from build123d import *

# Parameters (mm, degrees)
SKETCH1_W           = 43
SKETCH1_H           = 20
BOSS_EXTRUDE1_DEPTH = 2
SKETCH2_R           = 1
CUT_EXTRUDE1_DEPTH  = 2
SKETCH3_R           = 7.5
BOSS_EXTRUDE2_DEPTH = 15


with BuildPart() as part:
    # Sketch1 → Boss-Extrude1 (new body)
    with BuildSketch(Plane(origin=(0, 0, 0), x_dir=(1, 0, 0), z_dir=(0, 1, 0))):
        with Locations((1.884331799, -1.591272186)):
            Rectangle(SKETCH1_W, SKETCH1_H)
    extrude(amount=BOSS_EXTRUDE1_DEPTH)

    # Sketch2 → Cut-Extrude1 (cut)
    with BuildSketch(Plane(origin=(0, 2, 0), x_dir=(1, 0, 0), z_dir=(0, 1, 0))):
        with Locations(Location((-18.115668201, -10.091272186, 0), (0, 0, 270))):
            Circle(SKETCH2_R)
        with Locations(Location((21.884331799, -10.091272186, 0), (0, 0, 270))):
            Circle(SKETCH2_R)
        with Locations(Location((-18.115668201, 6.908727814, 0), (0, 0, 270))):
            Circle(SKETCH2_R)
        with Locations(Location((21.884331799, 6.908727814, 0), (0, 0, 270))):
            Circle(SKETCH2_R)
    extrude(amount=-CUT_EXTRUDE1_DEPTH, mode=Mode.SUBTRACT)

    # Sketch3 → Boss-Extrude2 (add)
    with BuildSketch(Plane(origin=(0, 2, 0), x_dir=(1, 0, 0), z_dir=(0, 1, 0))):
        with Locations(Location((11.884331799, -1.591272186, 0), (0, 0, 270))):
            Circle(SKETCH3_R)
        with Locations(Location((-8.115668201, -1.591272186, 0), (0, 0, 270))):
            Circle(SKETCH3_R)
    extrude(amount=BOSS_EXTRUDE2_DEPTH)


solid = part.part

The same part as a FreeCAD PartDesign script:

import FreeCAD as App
import Part
import Sketcher


def add_polygon(sketch, points):
    """Adds a closed chain of lines whose ends are joined by coincident constraints."""
    first, n = sketch.GeometryCount, len(points)
    for a, b in zip(points, points[1:] + points[:1]):
        sketch.addGeometry(Part.LineSegment(App.Vector(*a, 0), App.Vector(*b, 0)), False)
    for i in range(n):
        sketch.addConstraint(Sketcher.Constraint("Coincident", first + i, 2, first + (i + 1) % n, 1))

doc = App.newDocument("Part")
body = doc.addObject("PartDesign::Body", "Body")

# Sketch on XZ plane
sketch1 = body.newObject("Sketcher::SketchObject", "Sketch")
sketch1.AttachmentSupport = (doc.getObject("XZ_Plane"), [""])
sketch1.MapMode = "FlatFace"
add_polygon(sketch1, [(-20, -8), (-20, 12), (23, 12), (23, -8)])  # lines 0-3
sketch1.addConstraint([
    Sketcher.Constraint("Vertical", 0),
    Sketcher.Constraint("Horizontal", 1),
    Sketcher.Constraint("Vertical", 2),
    Sketcher.Constraint("Horizontal", 3),
    Sketcher.Constraint("DistanceX", 1, 1, 1, 2, 43.0),
    Sketcher.Constraint("DistanceY", 0, 1, 0, 2, 20.0),
    Sketcher.Constraint("DistanceX", 0, 2, -1, 1, 19.615668),
    Sketcher.Constraint("DistanceY", -1, 1, 0, 2, 11.591272),
])
pad1 = body.newObject("PartDesign::Pad", "Pad")
pad1.Profile = sketch1
pad1.Length = 2
pad1.Reversed = True

# Sketch on XZ plane
sketch2 = body.newObject("Sketcher::SketchObject", "Sketch001")
sketch2.AttachmentSupport = (doc.getObject("XZ_Plane"), [""])
sketch2.MapMode = "FlatFace"
sketch2.AttachmentOffset = App.Placement(App.Vector(0, 0, -2), App.Rotation())
sketch2.addGeometry([
    Part.Circle(App.Vector(-18.1, 10.1, 0), App.Vector(0, 0, 1), 1),
    Part.Circle(App.Vector(21.9, 10.1, 0), App.Vector(0, 0, 1), 1),
    Part.Circle(App.Vector(-18.1, -6.9, 0), App.Vector(0, 0, 1), 1),
    Part.Circle(App.Vector(21.9, -6.9, 0), App.Vector(0, 0, 1), 1),
], False)
sketch2.addConstraint([
    Sketcher.Constraint("Equal", 0, 1),
    Sketcher.Constraint("Equal", 1, 2),
    Sketcher.Constraint("Equal", 2, 3),
    Sketcher.Constraint("Horizontal", 0, 3, 1, 3),
    Sketcher.Constraint("Horizontal", 2, 3, 3, 3),
    Sketcher.Constraint("Vertical", 0, 3, 2, 3),
    Sketcher.Constraint("Vertical", 1, 3, 3, 3),
    Sketcher.Constraint("Diameter", 0, 2.0),
    Sketcher.Constraint("DistanceX", 0, 3, 1, 3, 40.0),
    Sketcher.Constraint("DistanceY", 2, 3, 0, 3, 17.0),
    Sketcher.Constraint("DistanceX", 0, 3, -1, 1, 18.115668),
    Sketcher.Constraint("DistanceY", -1, 1, 0, 3, 10.091272),
])
pocket1 = body.newObject("PartDesign::Pocket", "Pocket")
pocket1.Profile = sketch2
pocket1.Length = 2
pocket1.Reversed = True

# Sketch on XZ plane
sketch3 = body.newObject("Sketcher::SketchObject", "Sketch002")
sketch3.AttachmentSupport = (doc.getObject("XZ_Plane"), [""])
sketch3.MapMode = "FlatFace"
sketch3.AttachmentOffset = App.Placement(App.Vector(0, 0, -2), App.Rotation())
sketch3.addGeometry([
    Part.Circle(App.Vector(12, 2, 0), App.Vector(0, 0, 1), 8),
    Part.Circle(App.Vector(-8, 2, 0), App.Vector(0, 0, 1), 8),
], False)
sketch3.addConstraint([
    Sketcher.Constraint("Equal", 0, 1),
    Sketcher.Constraint("Horizontal", 0, 3, 1, 3),
    Sketcher.Constraint("Diameter", 0, 15.0),
    Sketcher.Constraint("DistanceX", 1, 3, 0, 3, 20.0),
    Sketcher.Constraint("DistanceX", -1, 1, 0, 3, 11.884332),
    Sketcher.Constraint("DistanceY", -1, 1, 0, 3, 1.591272),
])
pad2 = body.newObject("PartDesign::Pad", "Pad001")
pad2.Profile = sketch3
pad2.Length = 15
pad2.Reversed = True

doc.recompute()
